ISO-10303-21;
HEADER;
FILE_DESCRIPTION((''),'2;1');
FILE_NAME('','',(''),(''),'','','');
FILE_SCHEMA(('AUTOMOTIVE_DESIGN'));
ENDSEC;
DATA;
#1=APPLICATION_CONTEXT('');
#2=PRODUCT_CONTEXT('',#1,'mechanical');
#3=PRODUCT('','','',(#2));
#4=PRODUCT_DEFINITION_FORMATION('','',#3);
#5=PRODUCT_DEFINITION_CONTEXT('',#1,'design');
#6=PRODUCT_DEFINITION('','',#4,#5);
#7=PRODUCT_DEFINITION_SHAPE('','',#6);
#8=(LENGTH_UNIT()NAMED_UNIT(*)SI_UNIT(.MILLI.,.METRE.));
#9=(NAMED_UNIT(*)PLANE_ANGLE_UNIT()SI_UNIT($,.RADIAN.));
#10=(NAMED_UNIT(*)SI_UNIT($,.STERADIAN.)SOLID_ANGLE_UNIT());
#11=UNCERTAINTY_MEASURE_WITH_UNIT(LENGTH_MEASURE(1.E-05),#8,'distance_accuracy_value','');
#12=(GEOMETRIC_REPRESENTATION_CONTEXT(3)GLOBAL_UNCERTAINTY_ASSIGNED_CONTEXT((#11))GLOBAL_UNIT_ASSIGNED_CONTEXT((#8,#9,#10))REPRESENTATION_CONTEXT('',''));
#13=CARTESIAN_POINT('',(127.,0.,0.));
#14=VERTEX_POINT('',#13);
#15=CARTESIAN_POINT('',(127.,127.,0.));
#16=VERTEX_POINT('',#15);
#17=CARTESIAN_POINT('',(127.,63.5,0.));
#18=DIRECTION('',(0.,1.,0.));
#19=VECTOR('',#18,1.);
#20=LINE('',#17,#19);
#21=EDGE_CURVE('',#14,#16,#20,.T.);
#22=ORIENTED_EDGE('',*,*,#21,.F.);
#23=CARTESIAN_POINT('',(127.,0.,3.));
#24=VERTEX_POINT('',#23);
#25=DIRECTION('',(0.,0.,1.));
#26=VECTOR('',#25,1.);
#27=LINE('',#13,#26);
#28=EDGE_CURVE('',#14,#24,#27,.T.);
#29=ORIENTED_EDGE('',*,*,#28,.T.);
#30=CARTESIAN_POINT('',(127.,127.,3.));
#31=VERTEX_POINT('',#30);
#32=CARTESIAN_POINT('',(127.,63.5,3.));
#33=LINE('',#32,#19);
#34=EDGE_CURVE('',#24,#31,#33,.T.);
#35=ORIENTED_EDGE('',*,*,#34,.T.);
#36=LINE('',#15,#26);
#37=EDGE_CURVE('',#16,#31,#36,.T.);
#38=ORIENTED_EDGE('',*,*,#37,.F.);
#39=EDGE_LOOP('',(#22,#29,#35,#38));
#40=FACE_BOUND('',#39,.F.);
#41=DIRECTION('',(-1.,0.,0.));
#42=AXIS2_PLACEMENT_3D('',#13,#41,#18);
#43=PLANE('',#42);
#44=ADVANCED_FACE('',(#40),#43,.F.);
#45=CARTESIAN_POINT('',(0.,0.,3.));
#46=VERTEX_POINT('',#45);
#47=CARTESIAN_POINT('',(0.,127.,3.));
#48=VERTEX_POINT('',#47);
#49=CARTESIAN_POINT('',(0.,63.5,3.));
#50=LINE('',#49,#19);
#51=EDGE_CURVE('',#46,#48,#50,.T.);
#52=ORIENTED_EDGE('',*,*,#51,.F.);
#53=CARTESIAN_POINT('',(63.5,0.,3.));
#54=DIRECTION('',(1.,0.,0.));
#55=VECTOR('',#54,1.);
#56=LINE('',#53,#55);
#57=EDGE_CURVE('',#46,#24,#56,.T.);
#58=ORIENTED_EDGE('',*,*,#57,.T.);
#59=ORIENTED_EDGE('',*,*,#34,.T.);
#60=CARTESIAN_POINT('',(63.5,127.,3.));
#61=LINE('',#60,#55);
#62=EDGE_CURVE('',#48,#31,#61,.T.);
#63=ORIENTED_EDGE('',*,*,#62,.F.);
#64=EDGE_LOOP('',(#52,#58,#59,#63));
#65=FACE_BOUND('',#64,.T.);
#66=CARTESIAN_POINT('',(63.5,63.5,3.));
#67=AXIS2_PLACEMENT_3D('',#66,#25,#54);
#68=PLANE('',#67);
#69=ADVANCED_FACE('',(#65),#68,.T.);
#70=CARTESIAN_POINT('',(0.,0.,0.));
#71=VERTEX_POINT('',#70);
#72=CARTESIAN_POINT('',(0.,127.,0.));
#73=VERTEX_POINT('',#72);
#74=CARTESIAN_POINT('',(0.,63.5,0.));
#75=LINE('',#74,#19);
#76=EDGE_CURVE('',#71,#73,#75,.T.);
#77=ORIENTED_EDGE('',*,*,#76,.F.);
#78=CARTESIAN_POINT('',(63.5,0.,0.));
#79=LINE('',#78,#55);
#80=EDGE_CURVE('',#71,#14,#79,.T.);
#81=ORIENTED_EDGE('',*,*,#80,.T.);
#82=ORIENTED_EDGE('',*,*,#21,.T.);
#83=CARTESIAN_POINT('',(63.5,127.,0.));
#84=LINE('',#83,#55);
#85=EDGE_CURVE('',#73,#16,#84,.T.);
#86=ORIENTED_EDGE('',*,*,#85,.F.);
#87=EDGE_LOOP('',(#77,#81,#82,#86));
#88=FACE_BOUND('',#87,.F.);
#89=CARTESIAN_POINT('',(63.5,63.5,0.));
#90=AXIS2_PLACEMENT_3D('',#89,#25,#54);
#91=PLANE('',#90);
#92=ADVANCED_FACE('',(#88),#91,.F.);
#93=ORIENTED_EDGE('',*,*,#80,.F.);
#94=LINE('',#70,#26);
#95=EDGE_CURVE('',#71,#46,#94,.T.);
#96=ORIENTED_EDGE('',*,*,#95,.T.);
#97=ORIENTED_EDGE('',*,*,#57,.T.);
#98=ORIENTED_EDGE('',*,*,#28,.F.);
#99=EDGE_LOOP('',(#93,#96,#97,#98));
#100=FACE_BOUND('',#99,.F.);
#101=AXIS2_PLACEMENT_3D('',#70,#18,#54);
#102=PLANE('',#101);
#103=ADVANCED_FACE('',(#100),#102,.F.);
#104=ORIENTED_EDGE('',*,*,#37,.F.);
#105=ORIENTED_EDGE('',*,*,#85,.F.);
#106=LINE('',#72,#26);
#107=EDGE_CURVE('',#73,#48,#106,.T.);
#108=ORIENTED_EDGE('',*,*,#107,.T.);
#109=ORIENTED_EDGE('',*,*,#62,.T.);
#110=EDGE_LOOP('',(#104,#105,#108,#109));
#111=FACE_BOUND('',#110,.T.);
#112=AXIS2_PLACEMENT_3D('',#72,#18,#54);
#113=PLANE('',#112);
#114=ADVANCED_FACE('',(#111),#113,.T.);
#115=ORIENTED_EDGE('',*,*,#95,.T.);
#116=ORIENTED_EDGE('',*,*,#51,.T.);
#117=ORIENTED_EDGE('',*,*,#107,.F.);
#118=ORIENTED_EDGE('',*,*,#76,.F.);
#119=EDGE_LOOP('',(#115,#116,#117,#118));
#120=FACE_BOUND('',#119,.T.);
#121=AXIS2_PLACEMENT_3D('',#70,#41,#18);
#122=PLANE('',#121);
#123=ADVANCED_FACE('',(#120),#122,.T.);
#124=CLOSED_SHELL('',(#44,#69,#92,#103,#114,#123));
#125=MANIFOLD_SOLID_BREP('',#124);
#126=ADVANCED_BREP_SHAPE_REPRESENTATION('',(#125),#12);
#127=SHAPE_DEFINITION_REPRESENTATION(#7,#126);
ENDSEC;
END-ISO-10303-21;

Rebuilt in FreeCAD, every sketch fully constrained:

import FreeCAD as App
import Part
import Sketcher


def add_polygon(sketch, points):
    """Adds a closed chain of lines whose ends are joined by coincident constraints."""
    first, n = sketch.GeometryCount, len(points)
    for a, b in zip(points, points[1:] + points[:1]):
        sketch.addGeometry(Part.LineSegment(App.Vector(*a, 0), App.Vector(*b, 0)), False)
    for i in range(n):
        sketch.addConstraint(Sketcher.Constraint("Coincident", first + i, 2, first + (i + 1) % n, 1))

doc = App.newDocument("Part")
body = doc.addObject("PartDesign::Body", "Body")

sketch1 = body.newObject("Sketcher::SketchObject", "Sketch")
sketch1.AttachmentSupport = (doc.getObject("XY_Plane"), [""])
sketch1.MapMode = "FlatFace"
add_polygon(sketch1, [(0, 127), (0, 0), (127, 0), (127, 127)])
sketch1.addConstraint(Sketcher.Constraint("Vertical", 0))
sketch1.addConstraint(Sketcher.Constraint("Horizontal", 1))
sketch1.addConstraint(Sketcher.Constraint("Vertical", 2))
sketch1.addConstraint(Sketcher.Constraint("Horizontal", 3))
sketch1.addConstraint(Sketcher.Constraint("Coincident", 0, 2, -1, 1))
sketch1.addConstraint(Sketcher.Constraint("Equal", 3, 0))
sketch1.addConstraint(Sketcher.Constraint("DistanceX", 1, 1, 1, 2, 127.0))
pad1 = body.newObject("PartDesign::Pad", "Pad")
pad1.Profile = sketch1
pad1.Length = 3

doc.recompute()
